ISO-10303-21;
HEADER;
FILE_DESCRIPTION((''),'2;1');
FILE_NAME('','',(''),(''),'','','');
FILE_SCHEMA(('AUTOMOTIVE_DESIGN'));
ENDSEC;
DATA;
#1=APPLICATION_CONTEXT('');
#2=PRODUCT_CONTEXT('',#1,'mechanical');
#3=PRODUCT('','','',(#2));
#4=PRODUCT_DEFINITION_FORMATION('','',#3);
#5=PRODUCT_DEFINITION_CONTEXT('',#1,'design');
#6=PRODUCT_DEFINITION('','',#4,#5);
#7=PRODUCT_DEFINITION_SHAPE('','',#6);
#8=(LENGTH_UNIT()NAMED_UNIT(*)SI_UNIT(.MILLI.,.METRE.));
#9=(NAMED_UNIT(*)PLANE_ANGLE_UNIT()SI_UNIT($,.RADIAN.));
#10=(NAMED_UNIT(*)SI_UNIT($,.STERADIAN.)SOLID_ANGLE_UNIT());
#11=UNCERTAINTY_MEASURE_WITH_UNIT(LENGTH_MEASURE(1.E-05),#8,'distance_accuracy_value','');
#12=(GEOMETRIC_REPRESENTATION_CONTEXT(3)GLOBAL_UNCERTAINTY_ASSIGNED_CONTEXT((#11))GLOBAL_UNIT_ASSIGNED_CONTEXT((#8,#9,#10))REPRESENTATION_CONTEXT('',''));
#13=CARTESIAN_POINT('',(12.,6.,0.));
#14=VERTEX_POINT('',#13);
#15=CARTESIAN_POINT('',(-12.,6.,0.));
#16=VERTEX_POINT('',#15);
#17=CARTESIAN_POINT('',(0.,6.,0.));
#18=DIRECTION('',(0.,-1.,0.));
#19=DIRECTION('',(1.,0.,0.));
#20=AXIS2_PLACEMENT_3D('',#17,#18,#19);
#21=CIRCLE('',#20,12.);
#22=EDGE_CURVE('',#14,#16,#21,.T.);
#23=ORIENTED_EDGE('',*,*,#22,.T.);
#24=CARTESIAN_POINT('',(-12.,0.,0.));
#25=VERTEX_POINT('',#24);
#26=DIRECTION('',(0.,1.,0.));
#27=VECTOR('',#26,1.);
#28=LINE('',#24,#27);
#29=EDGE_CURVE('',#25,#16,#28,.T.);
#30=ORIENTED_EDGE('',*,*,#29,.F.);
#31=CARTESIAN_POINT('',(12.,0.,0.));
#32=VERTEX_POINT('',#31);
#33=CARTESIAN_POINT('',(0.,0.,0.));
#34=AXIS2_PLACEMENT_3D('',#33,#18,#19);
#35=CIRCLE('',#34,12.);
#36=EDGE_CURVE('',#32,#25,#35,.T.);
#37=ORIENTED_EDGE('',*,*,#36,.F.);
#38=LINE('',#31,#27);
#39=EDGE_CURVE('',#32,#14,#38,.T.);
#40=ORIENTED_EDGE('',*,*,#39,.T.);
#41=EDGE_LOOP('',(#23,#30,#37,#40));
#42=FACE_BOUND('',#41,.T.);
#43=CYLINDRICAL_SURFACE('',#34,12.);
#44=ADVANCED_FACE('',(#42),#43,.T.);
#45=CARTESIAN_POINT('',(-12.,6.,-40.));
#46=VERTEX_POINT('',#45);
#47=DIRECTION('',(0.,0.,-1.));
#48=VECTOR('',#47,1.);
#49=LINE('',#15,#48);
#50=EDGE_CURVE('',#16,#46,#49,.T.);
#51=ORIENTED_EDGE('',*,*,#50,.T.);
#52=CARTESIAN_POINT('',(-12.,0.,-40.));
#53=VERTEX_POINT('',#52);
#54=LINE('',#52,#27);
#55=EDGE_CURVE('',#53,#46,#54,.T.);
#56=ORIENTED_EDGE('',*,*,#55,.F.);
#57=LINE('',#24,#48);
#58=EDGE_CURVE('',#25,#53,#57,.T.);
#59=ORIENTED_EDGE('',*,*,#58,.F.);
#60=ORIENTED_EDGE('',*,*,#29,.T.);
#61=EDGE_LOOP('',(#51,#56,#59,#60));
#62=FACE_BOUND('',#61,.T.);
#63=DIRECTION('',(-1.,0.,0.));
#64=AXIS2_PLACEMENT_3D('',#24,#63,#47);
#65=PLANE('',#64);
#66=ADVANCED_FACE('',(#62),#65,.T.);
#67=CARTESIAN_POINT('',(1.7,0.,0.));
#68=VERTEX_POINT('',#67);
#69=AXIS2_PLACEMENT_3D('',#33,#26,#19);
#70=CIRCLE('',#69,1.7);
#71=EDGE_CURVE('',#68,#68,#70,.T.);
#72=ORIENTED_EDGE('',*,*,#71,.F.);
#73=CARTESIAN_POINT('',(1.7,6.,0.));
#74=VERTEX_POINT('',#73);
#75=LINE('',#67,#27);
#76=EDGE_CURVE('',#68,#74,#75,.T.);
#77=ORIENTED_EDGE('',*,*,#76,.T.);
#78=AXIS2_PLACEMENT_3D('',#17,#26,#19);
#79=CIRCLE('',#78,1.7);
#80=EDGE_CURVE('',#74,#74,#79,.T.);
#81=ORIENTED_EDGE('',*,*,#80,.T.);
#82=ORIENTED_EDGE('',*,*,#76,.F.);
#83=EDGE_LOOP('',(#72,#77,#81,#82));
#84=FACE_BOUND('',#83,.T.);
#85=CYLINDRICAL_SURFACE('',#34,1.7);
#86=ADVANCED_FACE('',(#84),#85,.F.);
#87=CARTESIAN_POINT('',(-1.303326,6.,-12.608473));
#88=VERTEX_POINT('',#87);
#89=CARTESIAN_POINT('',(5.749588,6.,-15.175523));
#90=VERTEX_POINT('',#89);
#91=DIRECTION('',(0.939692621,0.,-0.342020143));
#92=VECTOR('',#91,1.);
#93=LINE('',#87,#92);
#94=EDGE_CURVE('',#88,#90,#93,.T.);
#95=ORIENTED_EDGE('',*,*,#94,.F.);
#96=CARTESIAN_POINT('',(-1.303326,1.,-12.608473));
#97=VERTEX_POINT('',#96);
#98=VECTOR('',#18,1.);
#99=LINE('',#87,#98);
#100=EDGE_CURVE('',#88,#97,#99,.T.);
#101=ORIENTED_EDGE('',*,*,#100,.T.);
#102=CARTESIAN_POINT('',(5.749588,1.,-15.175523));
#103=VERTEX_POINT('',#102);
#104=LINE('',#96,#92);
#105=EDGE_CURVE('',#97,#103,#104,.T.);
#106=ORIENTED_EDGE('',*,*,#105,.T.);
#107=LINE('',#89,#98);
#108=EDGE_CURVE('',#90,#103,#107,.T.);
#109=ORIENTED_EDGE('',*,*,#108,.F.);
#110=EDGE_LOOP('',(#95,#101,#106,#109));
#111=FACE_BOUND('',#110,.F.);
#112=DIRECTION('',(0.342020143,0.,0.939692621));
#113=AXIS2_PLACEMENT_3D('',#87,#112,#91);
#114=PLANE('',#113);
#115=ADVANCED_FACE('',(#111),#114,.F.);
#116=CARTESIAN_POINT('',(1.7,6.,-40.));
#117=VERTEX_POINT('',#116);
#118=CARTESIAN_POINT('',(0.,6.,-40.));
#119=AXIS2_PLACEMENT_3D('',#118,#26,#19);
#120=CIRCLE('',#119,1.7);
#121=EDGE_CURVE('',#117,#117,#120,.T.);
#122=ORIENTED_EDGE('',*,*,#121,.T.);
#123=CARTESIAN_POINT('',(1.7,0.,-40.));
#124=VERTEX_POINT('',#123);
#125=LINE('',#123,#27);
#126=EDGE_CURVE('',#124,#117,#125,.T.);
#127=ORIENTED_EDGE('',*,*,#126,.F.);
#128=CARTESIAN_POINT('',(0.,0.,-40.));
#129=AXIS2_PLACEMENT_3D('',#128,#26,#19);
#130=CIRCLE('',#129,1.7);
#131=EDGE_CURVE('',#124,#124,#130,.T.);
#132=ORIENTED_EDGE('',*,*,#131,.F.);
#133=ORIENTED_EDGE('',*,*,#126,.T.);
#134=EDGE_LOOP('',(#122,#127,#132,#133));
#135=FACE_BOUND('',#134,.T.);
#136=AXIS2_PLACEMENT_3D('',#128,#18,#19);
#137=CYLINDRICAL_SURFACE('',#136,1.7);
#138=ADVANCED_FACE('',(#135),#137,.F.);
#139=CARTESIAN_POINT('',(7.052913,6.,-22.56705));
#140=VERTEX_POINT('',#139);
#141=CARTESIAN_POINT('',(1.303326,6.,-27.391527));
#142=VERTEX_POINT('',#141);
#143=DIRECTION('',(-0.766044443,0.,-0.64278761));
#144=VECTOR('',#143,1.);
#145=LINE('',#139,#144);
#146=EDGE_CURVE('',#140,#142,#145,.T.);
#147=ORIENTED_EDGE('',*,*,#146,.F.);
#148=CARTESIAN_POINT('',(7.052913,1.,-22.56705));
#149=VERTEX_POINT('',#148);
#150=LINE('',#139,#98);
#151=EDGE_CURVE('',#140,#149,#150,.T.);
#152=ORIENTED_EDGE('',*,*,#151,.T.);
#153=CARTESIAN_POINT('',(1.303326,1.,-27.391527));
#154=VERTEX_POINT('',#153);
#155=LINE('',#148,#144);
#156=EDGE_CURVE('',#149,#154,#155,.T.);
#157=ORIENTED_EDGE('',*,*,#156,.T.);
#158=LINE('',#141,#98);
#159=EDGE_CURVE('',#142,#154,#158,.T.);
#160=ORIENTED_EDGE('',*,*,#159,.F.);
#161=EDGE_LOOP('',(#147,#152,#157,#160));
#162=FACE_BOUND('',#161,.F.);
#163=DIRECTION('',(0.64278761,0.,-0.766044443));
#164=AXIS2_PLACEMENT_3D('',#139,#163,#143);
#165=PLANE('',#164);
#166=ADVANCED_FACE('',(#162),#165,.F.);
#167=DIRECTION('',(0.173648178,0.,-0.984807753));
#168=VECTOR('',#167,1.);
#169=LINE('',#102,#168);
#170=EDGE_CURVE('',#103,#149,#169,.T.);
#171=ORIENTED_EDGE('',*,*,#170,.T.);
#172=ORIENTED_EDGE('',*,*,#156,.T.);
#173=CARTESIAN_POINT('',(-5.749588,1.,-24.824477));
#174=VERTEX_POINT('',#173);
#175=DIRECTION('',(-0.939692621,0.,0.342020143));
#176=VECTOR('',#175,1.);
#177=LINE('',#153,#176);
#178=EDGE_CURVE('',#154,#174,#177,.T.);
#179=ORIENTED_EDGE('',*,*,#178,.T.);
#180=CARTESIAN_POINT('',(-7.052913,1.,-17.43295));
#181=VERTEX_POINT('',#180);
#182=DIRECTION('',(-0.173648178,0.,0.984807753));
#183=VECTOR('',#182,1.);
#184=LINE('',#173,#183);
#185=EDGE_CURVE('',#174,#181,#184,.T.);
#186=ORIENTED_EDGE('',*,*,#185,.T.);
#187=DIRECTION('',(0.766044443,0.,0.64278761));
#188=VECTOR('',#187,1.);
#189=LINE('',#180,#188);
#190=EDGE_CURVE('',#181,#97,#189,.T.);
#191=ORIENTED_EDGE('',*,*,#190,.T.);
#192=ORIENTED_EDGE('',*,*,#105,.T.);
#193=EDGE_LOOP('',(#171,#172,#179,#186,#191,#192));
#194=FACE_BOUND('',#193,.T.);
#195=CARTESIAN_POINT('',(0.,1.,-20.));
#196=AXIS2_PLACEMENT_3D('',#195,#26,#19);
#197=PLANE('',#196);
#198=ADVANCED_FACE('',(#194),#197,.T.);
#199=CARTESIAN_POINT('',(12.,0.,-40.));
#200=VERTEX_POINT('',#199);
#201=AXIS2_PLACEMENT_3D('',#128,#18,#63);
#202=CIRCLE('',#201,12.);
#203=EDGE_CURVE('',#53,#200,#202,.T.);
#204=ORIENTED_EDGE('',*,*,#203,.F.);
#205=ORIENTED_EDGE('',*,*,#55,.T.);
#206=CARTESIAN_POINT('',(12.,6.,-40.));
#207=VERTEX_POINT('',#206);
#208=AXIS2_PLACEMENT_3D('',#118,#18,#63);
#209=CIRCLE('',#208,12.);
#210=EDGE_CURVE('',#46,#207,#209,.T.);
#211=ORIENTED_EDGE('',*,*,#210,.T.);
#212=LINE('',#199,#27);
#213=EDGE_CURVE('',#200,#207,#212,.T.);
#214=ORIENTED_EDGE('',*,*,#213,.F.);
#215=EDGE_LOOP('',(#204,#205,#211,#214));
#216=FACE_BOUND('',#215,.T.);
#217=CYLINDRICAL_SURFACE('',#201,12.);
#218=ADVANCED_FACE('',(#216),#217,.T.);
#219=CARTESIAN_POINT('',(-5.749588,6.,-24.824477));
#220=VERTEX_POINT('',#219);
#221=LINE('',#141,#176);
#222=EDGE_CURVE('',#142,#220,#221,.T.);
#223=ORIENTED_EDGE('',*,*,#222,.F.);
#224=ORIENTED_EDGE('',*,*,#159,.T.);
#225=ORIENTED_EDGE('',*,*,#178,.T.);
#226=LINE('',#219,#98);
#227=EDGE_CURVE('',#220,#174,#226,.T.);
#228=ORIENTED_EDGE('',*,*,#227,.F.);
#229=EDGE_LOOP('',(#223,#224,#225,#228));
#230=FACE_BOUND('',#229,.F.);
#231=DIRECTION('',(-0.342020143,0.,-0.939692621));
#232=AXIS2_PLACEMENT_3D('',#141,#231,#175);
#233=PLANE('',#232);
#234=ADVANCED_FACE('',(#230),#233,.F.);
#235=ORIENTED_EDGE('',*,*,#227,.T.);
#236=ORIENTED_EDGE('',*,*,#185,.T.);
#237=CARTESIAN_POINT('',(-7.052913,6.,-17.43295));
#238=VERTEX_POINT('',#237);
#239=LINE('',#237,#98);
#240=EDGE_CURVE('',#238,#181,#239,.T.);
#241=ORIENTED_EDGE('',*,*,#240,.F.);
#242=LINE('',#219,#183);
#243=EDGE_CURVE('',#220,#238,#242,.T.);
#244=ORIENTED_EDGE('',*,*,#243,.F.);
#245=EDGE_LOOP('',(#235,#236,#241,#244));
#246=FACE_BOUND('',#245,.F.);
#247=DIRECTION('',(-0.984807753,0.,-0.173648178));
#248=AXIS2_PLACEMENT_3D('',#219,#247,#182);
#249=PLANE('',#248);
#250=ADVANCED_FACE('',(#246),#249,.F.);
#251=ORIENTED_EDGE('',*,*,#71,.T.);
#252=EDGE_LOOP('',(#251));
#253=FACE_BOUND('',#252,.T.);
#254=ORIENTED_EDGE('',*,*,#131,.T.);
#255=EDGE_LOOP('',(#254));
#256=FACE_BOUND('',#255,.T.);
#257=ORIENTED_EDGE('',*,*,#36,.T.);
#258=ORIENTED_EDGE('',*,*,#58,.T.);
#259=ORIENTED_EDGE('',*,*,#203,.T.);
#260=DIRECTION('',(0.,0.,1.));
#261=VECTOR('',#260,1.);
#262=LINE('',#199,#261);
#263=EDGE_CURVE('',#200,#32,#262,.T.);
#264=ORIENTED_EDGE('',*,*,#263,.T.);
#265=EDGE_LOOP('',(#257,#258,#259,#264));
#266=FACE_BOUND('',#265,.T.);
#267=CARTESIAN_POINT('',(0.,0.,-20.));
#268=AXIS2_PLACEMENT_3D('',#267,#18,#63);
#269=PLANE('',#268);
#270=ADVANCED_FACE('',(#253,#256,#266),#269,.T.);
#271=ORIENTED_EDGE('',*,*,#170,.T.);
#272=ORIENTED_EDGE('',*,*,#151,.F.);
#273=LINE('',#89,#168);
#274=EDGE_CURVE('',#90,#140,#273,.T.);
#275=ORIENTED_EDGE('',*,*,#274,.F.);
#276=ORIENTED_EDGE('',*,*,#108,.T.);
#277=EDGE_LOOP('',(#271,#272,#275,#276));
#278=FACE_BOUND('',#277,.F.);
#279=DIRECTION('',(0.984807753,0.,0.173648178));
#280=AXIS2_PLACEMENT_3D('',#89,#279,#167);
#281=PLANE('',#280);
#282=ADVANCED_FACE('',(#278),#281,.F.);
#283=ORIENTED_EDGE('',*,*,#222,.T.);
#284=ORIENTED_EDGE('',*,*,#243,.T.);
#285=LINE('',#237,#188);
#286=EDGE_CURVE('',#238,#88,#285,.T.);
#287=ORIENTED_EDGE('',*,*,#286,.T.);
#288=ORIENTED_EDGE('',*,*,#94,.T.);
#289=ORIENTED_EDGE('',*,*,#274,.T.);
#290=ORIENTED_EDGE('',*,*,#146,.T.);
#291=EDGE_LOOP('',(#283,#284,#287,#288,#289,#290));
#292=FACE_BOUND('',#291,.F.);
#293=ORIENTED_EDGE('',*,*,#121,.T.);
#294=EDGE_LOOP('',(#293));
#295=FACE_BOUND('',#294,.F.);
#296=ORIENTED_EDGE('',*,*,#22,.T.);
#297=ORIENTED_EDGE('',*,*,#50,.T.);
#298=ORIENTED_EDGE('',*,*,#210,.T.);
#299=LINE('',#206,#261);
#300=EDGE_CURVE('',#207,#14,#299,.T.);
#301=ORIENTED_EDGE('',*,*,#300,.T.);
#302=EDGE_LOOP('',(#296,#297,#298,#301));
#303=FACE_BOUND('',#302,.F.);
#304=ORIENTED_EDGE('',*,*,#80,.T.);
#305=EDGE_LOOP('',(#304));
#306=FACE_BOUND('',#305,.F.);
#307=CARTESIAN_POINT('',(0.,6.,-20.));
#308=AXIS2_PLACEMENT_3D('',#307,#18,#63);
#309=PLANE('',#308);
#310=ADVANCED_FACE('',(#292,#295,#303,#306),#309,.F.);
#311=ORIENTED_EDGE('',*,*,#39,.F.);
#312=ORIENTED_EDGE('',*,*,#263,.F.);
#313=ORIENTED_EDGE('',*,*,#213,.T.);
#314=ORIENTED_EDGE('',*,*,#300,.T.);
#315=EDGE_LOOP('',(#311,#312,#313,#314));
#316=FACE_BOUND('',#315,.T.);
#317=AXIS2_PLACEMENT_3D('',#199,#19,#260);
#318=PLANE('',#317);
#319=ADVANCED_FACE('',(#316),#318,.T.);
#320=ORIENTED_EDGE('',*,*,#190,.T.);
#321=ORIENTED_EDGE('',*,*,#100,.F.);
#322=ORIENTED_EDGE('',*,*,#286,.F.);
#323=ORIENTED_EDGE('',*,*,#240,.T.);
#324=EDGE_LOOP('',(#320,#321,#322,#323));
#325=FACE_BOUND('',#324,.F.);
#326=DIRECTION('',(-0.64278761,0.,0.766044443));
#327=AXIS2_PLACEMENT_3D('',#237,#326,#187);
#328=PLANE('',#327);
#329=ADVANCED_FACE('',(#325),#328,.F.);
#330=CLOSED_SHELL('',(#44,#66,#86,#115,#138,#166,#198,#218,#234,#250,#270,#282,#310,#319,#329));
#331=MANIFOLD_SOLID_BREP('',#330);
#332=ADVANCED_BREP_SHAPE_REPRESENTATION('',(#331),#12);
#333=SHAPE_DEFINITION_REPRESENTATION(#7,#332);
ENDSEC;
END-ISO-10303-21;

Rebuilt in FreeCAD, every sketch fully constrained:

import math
import FreeCAD as App
import Part
import Sketcher
Q = App.Units.Quantity

doc = App.newDocument("Part")
body = doc.addObject("PartDesign::Body", "Body")

sketch1 = body.newObject("Sketcher::SketchObject", "Sketch")
sketch1.AttachmentSupport = (doc.getObject("XZ_Plane"), [""])
sketch1.MapMode = "FlatFace"
sketch1.addGeometry([
    Part.LineSegment(App.Vector(-12, -40, 0), App.Vector(-12, 0, 0)),
    Part.ArcOfCircle(Part.Circle(App.Vector(0, 0, 0), App.Vector(0, 0, 1), 12), math.radians(0), math.radians(180)),
    Part.LineSegment(App.Vector(12, 0, 0), App.Vector(12, -40, 0)),
    Part.ArcOfCircle(Part.Circle(App.Vector(0, -40, 0), App.Vector(0, 0, 1), 12), math.radians(180), math.radians(360)),
    Part.Circle(App.Vector(0, 0, 0), App.Vector(0, 0, 1), 1.7),
    Part.Circle(App.Vector(0, -40, 0), App.Vector(0, 0, 1), 1.7),
], False)
sketch1.addConstraint([
    Sketcher.Constraint("Tangent", 0, 2, 1, 2),
    Sketcher.Constraint("Tangent", 1, 1, 2, 1),
    Sketcher.Constraint("Tangent", 2, 2, 3, 2),
    Sketcher.Constraint("Tangent", 3, 1, 0, 1),
    Sketcher.Constraint("Vertical", 0),
    Sketcher.Constraint("Vertical", 2),
    Sketcher.Constraint("Coincident", 1, 3, -1, 1),
    Sketcher.Constraint("Coincident", 4, 3, -1, 1),
    Sketcher.Constraint("Coincident", 5, 3, 3, 3),
    Sketcher.Constraint("Equal", 4, 5),
    Sketcher.Constraint("Radius", 1, 12.0),
    Sketcher.Constraint("Diameter", 4, 3.4),
    Sketcher.Constraint("DistanceY", 0, 1, 0, 2, 40.0),
])
pad1 = body.newObject("PartDesign::Pad", "Pad")
pad1.Profile = sketch1
pad1.Length = 6
pad1.Reversed = True

sketch2 = body.newObject("Sketcher::SketchObject", "Sketch001")
sketch2.AttachmentSupport = (doc.getObject("XZ_Plane"), [""])
sketch2.MapMode = "FlatFace"
sketch2.AttachmentOffset = App.Placement(App.Vector(0, 0, -6), App.Rotation())
sketch2.addGeometry([
    Part.LineSegment(App.Vector(6, -15, 0), App.Vector(7, -23, 0)),
    Part.LineSegment(App.Vector(7, -23, 0), App.Vector(1, -27, 0)),
    Part.LineSegment(App.Vector(1, -27, 0), App.Vector(-6, -25, 0)),
    Part.LineSegment(App.Vector(-6, -25, 0), App.Vector(-7, -17, 0)),
    Part.LineSegment(App.Vector(-7, -17, 0), App.Vector(-1, -13, 0)),
    Part.LineSegment(App.Vector(-1, -13, 0), App.Vector(6, -15, 0)),
], False)
sketch2.addConstraint([
    Sketcher.Constraint("Coincident", 0, 2, 1, 1),
    Sketcher.Constraint("Coincident", 1, 2, 2, 1),
    Sketcher.Constraint("Coincident", 2, 2, 3, 1),
    Sketcher.Constraint("Coincident", 3, 2, 4, 1),
    Sketcher.Constraint("Coincident", 4, 2, 5, 1),
    Sketcher.Constraint("Coincident", 5, 2, 0, 1),
    Sketcher.Constraint("Parallel", 0, 3),
    Sketcher.Constraint("Parallel", 1, 4),
    Sketcher.Constraint("Parallel", 2, 5),
    Sketcher.Constraint("Equal", 0, 1),
    Sketcher.Constraint("Equal", 1, 2),
    Sketcher.Constraint("Equal", 2, 3),
    Sketcher.Constraint("Angle", 0, Q("-80 deg")),
    Sketcher.Constraint("Angle", 1, Q("-140 deg")),
    Sketcher.Constraint("Angle", 2, Q("160 deg")),
    Sketcher.Constraint("DistanceX", 2, 2, 0, 2, 12.802501),
    Sketcher.Constraint("DistanceY", 0, 2, -1, 1, 22.56705),
    Sketcher.Constraint("DistanceX", -1, 1, 0, 2, 7.052913),
])
pocket1 = body.newObject("PartDesign::Pocket", "Pocket")
pocket1.Profile = sketch2
pocket1.Length = 5
pocket1.Reversed = True

doc.recompute()
